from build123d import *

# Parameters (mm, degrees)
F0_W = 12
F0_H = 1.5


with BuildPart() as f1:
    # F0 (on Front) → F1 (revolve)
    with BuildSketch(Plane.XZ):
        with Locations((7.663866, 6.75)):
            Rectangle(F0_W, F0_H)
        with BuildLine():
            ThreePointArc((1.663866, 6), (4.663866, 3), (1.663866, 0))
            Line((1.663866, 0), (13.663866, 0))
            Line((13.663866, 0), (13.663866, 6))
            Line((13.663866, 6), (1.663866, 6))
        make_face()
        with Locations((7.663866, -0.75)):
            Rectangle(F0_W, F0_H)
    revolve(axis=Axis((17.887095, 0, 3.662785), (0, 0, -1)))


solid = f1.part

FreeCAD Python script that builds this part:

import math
import FreeCAD as App
import Part
import Sketcher
from FreeCAD import Vector

doc = App.newDocument("Part")
body = doc.addObject("PartDesign::Body", "Body")

sketch1 = doc.addObject("Sketcher::SketchObject", "Sketch")
body.addObject(sketch1)
sketch1.AttachmentSupport = (doc.XZ_Plane, [""])
sketch1.MapMode = "FlatFace"
sketch1.addGeometry([
    Part.LineSegment(Vector(1.7, 7.5, 0), Vector(1.7, 6, 0)),
    Part.ArcOfCircle(Part.Circle(Vector(1.7, 3, 0), Vector(0, 0, 1), 3), math.radians(-90), math.radians(90)),
    Part.LineSegment(Vector(1.7, 0, 0), Vector(1.7, -1.5, 0)),
    Part.LineSegment(Vector(1.7, -1.5, 0), Vector(13.7, -1.5, 0)),
    Part.LineSegment(Vector(13.7, -1.5, 0), Vector(13.7, 7.5, 0)),
    Part.LineSegment(Vector(13.7, 7.5, 0), Vector(1.7, 7.5, 0)),
], False)
sketch1.addGeometry(Part.LineSegment(Vector(17.9, 7.5, 0), Vector(17.9, -1.5, 0)), True)
sketch1.addConstraint([
    Sketcher.Constraint("Coincident", 0, 2, 1, 2),
    Sketcher.Constraint("Coincident", 1, 1, 2, 1),
    Sketcher.Constraint("Coincident", 2, 2, 3, 1),
    Sketcher.Constraint("Coincident", 3, 2, 4, 1),
    Sketcher.Constraint("Coincident", 4, 2, 5, 1),
    Sketcher.Constraint("Coincident", 5, 2, 0, 1),
    Sketcher.Constraint("Vertical", 0),
    Sketcher.Constraint("Vertical", 2),
    Sketcher.Constraint("Horizontal", 3),
    Sketcher.Constraint("Vertical", 4),
    Sketcher.Constraint("Horizontal", 5),
    Sketcher.Constraint("Vertical", 6),
    Sketcher.Constraint("PointOnObject", 1, 1, -1),
    Sketcher.Constraint("Horizontal", 5, 2, 6, 1),
    Sketcher.Constraint("Horizontal", 3, 2, 6, 2),
    Sketcher.Constraint("Vertical", 1, 3, 0, 2),
    Sketcher.Constraint("Vertical", 0, 2, 1, 1),
    Sketcher.Constraint("Equal", 0, 2),
    Sketcher.Constraint("Radius", 1, 3.0),
    Sketcher.Constraint("DistanceX", 3, 1, 3, 2, 12.0),
    Sketcher.Constraint("DistanceY", 4, 1, 4, 2, 9.0),
    Sketcher.Constraint("DistanceX", 4, 2, 6, 1, 4.223229),
    Sketcher.Constraint("DistanceX", -1, 1, 1, 3, 1.663866),
])
revolution = doc.addObject("PartDesign::Revolution", "Revolution")
body.addObject(revolution)
revolution.Profile = sketch1
revolution.ReferenceAxis = (sketch1, ["Axis0"])
revolution.Angle = 360

doc.recompute()
